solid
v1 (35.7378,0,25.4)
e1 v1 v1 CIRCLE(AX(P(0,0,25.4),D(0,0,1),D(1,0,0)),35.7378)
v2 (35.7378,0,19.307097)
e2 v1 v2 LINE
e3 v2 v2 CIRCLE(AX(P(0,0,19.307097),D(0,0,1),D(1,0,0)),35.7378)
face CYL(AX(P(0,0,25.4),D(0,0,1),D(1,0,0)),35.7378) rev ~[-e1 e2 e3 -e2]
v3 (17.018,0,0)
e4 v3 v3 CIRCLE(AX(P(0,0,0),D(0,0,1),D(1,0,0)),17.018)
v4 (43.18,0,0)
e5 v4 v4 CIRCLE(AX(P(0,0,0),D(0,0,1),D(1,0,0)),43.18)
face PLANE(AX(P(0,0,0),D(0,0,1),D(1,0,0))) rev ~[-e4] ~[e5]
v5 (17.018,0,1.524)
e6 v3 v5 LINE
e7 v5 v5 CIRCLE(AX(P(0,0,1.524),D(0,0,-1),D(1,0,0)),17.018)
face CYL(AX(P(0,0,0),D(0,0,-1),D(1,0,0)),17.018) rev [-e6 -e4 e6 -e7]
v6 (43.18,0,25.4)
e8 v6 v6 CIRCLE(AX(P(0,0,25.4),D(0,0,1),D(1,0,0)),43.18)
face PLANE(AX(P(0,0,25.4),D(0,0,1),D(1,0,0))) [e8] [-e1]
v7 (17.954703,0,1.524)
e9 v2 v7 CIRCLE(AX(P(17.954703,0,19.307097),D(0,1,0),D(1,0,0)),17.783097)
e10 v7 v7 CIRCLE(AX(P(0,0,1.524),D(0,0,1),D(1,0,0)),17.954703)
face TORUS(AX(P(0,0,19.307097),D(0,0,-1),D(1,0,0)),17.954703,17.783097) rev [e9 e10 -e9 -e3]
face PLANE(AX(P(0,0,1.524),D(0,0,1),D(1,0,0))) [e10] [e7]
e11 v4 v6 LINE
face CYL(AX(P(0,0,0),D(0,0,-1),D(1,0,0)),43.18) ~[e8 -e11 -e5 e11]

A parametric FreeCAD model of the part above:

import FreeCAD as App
import Part
import Sketcher
from FreeCAD import Vector
Q = App.Units.Quantity


def edges_at(feature, points):
    """Names of the edges that pass closest to the given points."""
    edges = feature.Shape.Edges
    near = lambda p: min(range(len(edges)), key=lambda i: edges[i].distToShape(Part.Vertex(*p))[0])
    return sorted({f"Edge{near(p) + 1}" for p in points})

doc = App.newDocument("Part")
body = doc.addObject("PartDesign::Body", "Body")

sketch1 = body.newObject("Sketcher::SketchObject", "Sketch")
sketch1.AttachmentSupport = (doc.getObject("XY_Plane"), [""])
sketch1.MapMode = "FlatFace"
sketch1.addGeometry(Part.Circle(Vector(0, 0, 0), Vector(0, 0, 1), 43.18), False)
sketch1.addConstraint([
    Sketcher.Constraint("Coincident", 0, 3, -1, 1),
    Sketcher.Constraint("Diameter", 0, Q("3.4 in")),
])
pad1 = body.newObject("PartDesign::Pad", "Pad")
pad1.Profile = sketch1
pad1.Length = Q("1 in")

sketch2 = body.newObject("Sketcher::SketchObject", "Sketch001")
sketch2.AttachmentSupport = (doc.getObject("XY_Plane"), [""])
sketch2.MapMode = "FlatFace"
sketch2.addGeometry(Part.Circle(Vector(0, 0, 0), Vector(0, 0, 1), 17.018), False)
sketch2.addConstraint([
    Sketcher.Constraint("Coincident", 0, 3, -1, 1),
    Sketcher.Constraint("Diameter", 0, Q("1.34 in")),
])
pocket1 = body.newObject("PartDesign::Pocket", "Pocket")
pocket1.Profile = sketch2
pocket1.Length = Q("1.09 in")
pocket1.Reversed = True

sketch3 = body.newObject("Sketcher::SketchObject", "Sketch002")
sketch3.AttachmentSupport = (doc.getObject("XY_Plane"), [""])
sketch3.MapMode = "FlatFace"
sketch3.AttachmentOffset = App.Placement(Vector(0, 0, 1 * 25.4), App.Rotation())
sketch3.addGeometry(Part.Circle(Vector(0, 0, 0), Vector(0, 0, 1), 35.7378), False)
sketch3.addConstraint([
    Sketcher.Constraint("Coincident", 0, 3, -1, 1),
    Sketcher.Constraint("Diameter", 0, Q("2.814 in")),
])
pocket2 = body.newObject("PartDesign::Pocket", "Pocket001")
pocket2.Profile = sketch3
pocket2.Length = Q("0.94 in")
doc.recompute()

fillet = body.newObject("PartDesign::Fillet", "Fillet")
fillet.Base = (pocket2, edges_at(pocket2, [(-35.738, 0, 1.524)]))
fillet.Radius = 17.783097

doc.recompute()
